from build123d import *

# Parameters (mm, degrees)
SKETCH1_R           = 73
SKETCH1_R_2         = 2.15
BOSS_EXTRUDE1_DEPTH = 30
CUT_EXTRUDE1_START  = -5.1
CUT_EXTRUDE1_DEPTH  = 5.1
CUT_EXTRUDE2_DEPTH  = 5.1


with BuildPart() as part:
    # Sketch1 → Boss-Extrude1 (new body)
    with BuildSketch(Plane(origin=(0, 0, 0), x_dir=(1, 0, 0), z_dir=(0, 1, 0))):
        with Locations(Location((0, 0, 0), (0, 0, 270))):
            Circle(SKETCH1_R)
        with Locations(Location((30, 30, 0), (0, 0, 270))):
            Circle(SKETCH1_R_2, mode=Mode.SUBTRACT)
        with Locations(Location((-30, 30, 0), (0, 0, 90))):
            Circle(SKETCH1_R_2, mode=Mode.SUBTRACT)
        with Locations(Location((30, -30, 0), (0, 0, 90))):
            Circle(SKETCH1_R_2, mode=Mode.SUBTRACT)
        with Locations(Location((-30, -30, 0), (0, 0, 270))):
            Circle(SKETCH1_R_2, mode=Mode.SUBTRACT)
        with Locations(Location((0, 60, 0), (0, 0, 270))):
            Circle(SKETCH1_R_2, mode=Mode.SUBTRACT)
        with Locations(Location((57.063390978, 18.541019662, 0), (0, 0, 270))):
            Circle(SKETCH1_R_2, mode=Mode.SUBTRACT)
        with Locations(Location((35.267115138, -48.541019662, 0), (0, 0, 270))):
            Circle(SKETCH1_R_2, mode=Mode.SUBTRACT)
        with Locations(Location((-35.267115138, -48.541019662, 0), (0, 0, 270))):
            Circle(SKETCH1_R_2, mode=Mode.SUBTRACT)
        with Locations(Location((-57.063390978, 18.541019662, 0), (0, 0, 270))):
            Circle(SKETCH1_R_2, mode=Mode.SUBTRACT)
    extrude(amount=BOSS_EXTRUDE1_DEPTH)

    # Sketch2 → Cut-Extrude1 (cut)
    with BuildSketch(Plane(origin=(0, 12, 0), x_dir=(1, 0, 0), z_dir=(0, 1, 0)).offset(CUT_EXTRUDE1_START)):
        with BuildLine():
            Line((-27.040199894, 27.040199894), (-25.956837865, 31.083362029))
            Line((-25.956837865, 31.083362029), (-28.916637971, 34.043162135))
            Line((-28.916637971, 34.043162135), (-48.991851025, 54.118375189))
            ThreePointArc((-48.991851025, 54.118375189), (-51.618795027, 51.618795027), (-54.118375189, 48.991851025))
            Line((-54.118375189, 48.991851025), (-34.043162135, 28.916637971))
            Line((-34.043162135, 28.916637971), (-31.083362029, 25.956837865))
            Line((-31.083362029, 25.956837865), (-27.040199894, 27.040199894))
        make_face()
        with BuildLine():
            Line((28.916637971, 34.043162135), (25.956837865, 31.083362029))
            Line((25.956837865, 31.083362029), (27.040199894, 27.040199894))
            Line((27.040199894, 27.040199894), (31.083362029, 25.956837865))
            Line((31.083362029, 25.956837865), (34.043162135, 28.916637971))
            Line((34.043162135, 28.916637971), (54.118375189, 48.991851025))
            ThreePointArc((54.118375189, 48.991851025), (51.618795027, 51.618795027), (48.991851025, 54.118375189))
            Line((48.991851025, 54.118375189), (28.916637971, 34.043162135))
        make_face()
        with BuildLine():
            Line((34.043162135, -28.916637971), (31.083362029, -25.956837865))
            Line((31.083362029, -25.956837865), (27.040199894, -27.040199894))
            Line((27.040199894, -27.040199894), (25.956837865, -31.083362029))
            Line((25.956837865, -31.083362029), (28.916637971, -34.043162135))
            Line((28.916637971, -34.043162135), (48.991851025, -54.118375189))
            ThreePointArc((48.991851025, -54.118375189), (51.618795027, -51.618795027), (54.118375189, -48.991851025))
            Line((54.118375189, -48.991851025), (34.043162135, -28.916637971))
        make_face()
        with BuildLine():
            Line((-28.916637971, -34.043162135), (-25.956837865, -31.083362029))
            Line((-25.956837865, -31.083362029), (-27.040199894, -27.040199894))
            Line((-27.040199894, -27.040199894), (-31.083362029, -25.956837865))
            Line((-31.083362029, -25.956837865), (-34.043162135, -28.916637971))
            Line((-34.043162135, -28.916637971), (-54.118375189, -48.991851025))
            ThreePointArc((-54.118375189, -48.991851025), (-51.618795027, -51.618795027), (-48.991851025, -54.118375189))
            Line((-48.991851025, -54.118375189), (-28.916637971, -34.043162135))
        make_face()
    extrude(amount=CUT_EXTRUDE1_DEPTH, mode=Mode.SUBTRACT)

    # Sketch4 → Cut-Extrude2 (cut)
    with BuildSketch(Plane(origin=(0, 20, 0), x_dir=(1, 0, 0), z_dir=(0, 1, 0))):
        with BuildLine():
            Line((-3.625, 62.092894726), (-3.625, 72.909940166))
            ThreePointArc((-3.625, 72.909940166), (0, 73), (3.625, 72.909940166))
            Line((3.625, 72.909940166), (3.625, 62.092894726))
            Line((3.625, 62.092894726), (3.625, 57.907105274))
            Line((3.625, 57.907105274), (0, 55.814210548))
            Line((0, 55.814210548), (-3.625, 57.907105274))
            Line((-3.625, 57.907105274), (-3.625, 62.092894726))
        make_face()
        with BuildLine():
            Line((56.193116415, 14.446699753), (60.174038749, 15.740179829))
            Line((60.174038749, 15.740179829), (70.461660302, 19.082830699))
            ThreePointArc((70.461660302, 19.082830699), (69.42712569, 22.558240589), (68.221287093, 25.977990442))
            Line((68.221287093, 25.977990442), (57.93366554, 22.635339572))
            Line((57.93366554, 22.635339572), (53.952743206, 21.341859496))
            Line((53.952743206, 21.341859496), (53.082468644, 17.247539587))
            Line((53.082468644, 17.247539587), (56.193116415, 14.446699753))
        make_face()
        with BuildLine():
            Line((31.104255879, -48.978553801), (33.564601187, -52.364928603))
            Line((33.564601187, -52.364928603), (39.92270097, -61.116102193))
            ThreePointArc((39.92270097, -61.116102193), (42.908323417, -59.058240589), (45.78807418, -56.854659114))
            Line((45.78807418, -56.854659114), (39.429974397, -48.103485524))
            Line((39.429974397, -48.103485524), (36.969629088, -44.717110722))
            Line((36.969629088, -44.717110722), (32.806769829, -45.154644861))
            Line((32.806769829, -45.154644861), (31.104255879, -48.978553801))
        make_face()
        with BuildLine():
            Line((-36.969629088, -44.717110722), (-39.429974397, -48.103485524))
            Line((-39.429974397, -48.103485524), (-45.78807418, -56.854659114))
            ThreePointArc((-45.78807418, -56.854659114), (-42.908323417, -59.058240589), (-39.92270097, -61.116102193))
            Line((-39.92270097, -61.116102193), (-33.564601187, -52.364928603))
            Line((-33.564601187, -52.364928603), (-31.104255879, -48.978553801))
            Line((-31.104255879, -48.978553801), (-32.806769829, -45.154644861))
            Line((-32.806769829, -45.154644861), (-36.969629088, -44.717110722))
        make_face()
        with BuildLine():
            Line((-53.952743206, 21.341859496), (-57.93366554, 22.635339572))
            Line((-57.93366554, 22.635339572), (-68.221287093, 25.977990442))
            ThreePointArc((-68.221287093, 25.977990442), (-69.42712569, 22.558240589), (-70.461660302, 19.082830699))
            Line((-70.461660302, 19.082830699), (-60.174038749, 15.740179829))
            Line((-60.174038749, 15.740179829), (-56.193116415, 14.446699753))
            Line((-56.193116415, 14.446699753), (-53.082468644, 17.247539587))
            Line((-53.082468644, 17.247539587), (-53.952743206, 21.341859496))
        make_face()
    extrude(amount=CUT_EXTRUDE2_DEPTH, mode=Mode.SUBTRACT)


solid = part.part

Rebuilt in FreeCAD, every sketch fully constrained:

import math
import FreeCAD as App
import Part
import Sketcher

V = App.Vector
Q = App.Units.Quantity

doc = App.newDocument("Part")
params = doc.addObject("Spreadsheet::Sheet", "Params")
for row, (alias, value) in enumerate([
    ("sketch1_diameter", "146 mm"),
    ("sketch1_diameter2", "4.3 mm"),
    ("pad1_length", "30 mm"),
    ("sketch2_radius", "72.999999 mm"),
    ("pocket1_length", "5.1 mm"),
    ("sketch3_radius", "73 mm"),
    ("pocket2_length", "5.1 mm"),
], start=1):
    params.set(f"A{row}", alias)
    params.set(f"B{row}", "=" + value)
    params.setAlias(f"B{row}", alias)

body = doc.addObject("PartDesign::Body", "Body")

# Sketch on XZ plane
sketch1 = doc.addObject("Sketcher::SketchObject", "Sketch")
body.addObject(sketch1)
sketch1.AttachmentSupport = (doc.XZ_Plane, [""])
sketch1.MapMode = "FlatFace"
sketch1.addGeometry([
    Part.Circle(V(0, 0, 0), V(0, 0, 1), 73),  # 0
    Part.Circle(V(-57.1, -18.5, 0), V(0, 0, 1), 2.1),  # 1
    Part.Circle(V(-30, -30, 0), V(0, 0, 1), 2.1),  # 2
    Part.Circle(V(-30, 30, 0), V(0, 0, 1), 2.1),  # 3
    Part.Circle(V(-35.3, 48.5, 0), V(0, 0, 1), 2.1),  # 4
    Part.Circle(V(0, -60, 0), V(0, 0, 1), 2.1),  # 5
    Part.Circle(V(30, -30, 0), V(0, 0, 1), 2.1),  # 6
    Part.Circle(V(57.1, -18.5, 0), V(0, 0, 1), 2.1),  # 7
    Part.Circle(V(30, 30, 0), V(0, 0, 1), 2.1),  # 8
    Part.Circle(V(35.3, 48.5, 0), V(0, 0, 1), 2.1),  # 9
], False)
sketch1.addConstraint([
    Sketcher.Constraint("Coincident", 0, 3, -1, 1),
    Sketcher.Constraint("Equal", 1, 2),
    Sketcher.Constraint("Equal", 2, 3),
    Sketcher.Constraint("Equal", 3, 4),
    Sketcher.Constraint("Equal", 4, 5),
    Sketcher.Constraint("Equal", 5, 6),
    Sketcher.Constraint("Equal", 6, 7),
    Sketcher.Constraint("Equal", 7, 8),
    Sketcher.Constraint("Equal", 8, 9),
    Sketcher.Constraint("Symmetric", 3, 3, 6, 3, -1, 1),
    Sketcher.Constraint("Symmetric", 2, 3, 8, 3, -1, 1),
    Sketcher.Constraint("Symmetric", 2, 3, 6, 3, -2),
    Sketcher.Constraint("Symmetric", 1, 3, 7, 3, -2),
    Sketcher.Constraint("Symmetric", 4, 3, 9, 3, -2),
    Sketcher.Constraint("PointOnObject", 5, 3, -2),
    Sketcher.Constraint("Diameter", 0, 146.0),
    Sketcher.Constraint("Diameter", 1, 4.3),
    Sketcher.Constraint("DistanceX", 2, 3, -1, 1, 30.0),
    Sketcher.Constraint("DistanceY", 2, 3, -1, 1, 30.0),
    Sketcher.Constraint("DistanceY", 5, 3, -1, 1, 60.0),
    Sketcher.Constraint("DistanceX", 1, 3, -1, 1, 57.063391),
    Sketcher.Constraint("DistanceY", 1, 3, -1, 1, 18.54102),
    Sketcher.Constraint("DistanceY", -1, 1, 4, 3, 48.54102),
    Sketcher.Constraint("DistanceX", 4, 3, 9, 3, 70.53423),
])
sketch1.setExpression("Constraints[15]", "Params.sketch1_diameter")
sketch1.setExpression("Constraints[16]", "Params.sketch1_diameter2")
pad1 = doc.addObject("PartDesign::Pad", "Pad")
body.addObject(pad1)
pad1.Profile = sketch1
pad1.setExpression("Length", "Params.pad1_length")
pad1.Reversed = True

# Sketch on XZ plane
sketch2 = doc.addObject("Sketcher::SketchObject", "Sketch001")
body.addObject(sketch2)
sketch2.AttachmentSupport = (doc.XZ_Plane, [""])
sketch2.MapMode = "FlatFace"
sketch2.AttachmentOffset = App.Placement(V(0, 0, -6.9), App.Rotation())
sketch2.addGeometry([
    Part.LineSegment(V(-27, -27, 0), V(-26, -31.1, 0)),  # 0
    Part.LineSegment(V(-26, -31.1, 0), V(-49, -54.1, 0)),  # 1
    Part.ArcOfCircle(Part.Circle(V(0, 0, 0), V(0, 0, 1), 73), math.radians(-137.85), math.radians(-132.15)),  # 2
    Part.LineSegment(V(-54.1, -49, 0), V(-31.1, -26, 0)),  # 3
    Part.LineSegment(V(-31.1, -26, 0), V(-27, -27, 0)),  # 4
    Part.LineSegment(V(26, -31.1, 0), V(27, -27, 0)),  # 5
    Part.LineSegment(V(27, -27, 0), V(31.1, -26, 0)),  # 6
    Part.LineSegment(V(31.1, -26, 0), V(54.1, -49, 0)),  # 7
    Part.ArcOfCircle(Part.Circle(V(0, 0, 0), V(0, 0, 1), 73), math.radians(-47.85), math.radians(-42.15)),  # 8
    Part.LineSegment(V(49, -54.1, 0), V(26, -31.1, 0)),  # 9
    Part.LineSegment(V(31.1, 26, 0), V(27, 27, 0)),  # 10
    Part.LineSegment(V(27, 27, 0), V(26, 31.1, 0)),  # 11
    Part.LineSegment(V(26, 31.1, 0), V(49, 54.1, 0)),  # 12
    Part.ArcOfCircle(Part.Circle(V(0, 0, 0), V(0, 0, 1), 73), math.radians(42.15), math.radians(47.85)),  # 13
    Part.LineSegment(V(54.1, 49, 0), V(31.1, 26, 0)),  # 14
    Part.LineSegment(V(-26, 31.1, 0), V(-27, 27, 0)),  # 15
    Part.LineSegment(V(-27, 27, 0), V(-31.1, 26, 0)),  # 16
    Part.LineSegment(V(-31.1, 26, 0), V(-54.1, 49, 0)),  # 17
    Part.ArcOfCircle(Part.Circle(V(0, 0, 0), V(0, 0, 1), 73), math.radians(132.15), math.radians(137.85)),  # 18
    Part.LineSegment(V(-49, 54.1, 0), V(-26, 31.1, 0)),  # 19
], False)
sketch2.addConstraint([
    Sketcher.Constraint("Coincident", 0, 2, 1, 1),
    Sketcher.Constraint("Coincident", 1, 2, 2, 2),
    Sketcher.Constraint("Coincident", 2, 1, 3, 1),
    Sketcher.Constraint("Coincident", 3, 2, 4, 1),
    Sketcher.Constraint("Coincident", 4, 2, 0, 1),
    Sketcher.Constraint("Coincident", 5, 2, 6, 1),
    Sketcher.Constraint("Coincident", 6, 2, 7, 1),
    Sketcher.Constraint("Coincident", 7, 2, 8, 2),
    Sketcher.Constraint("Coincident", 8, 1, 9, 1),
    Sketcher.Constraint("Coincident", 9, 2, 5, 1),
    Sketcher.Constraint("Coincident", 10, 2, 11, 1),
    Sketcher.Constraint("Coincident", 11, 2, 12, 1),
    Sketcher.Constraint("Coincident", 12, 2, 13, 2),
    Sketcher.Constraint("Coincident", 13, 1, 14, 1),
    Sketcher.Constraint("Coincident", 14, 2, 10, 1),
    Sketcher.Constraint("Coincident", 15, 2, 16, 1),
    Sketcher.Constraint("Coincident", 16, 2, 17, 1),
    Sketcher.Constraint("Coincident", 17, 2, 18, 2),
    Sketcher.Constraint("Coincident", 18, 1, 19, 1),
    Sketcher.Constraint("Coincident", 19, 2, 15, 1),
    Sketcher.Constraint("Coincident", 2, 3, -1, 1),
    Sketcher.Constraint("Coincident", 8, 3, -1, 1),
    Sketcher.Constraint("Coincident", 13, 3, -1, 1),
    Sketcher.Constraint("Coincident", 18, 3, -1, 1),
    Sketcher.Constraint("Equal", 2, 8),
    Sketcher.Constraint("Equal", 8, 13),
    Sketcher.Constraint("Equal", 13, 18),
    Sketcher.Constraint("Symmetric", 4, 2, 10, 2, -1, 1),
    Sketcher.Constraint("Symmetric", 0, 2, 11, 2, -1, 1),
    Sketcher.Constraint("Symmetric", 3, 2, 14, 2, -1, 1),
    Sketcher.Constraint("Symmetric", 5, 2, 15, 2, -1, 1),
    Sketcher.Constraint("Symmetric", 6, 2, 16, 2, -1, 1),
    Sketcher.Constraint("Symmetric", 9, 2, 19, 2, -1, 1),
    Sketcher.Constraint("Symmetric", 4, 2, 5, 2, -2),
    Sketcher.Constraint("Symmetric", 3, 2, 6, 2, -2),
    Sketcher.Constraint("Symmetric", 0, 2, 9, 2, -2),
    Sketcher.Constraint("Parallel", 1, 3),
    Sketcher.Constraint("Perpendicular", 4, 5),
    Sketcher.Constraint("Perpendicular", 3, 7),
    Sketcher.Constraint("Parallel", 7, 9),
    Sketcher.Constraint("Perpendicular", 9, 12),
    Sketcher.Constraint("Parallel", 12, 14),
    Sketcher.Constraint("Perpendicular", 14, 17),
    Sketcher.Constraint("Parallel", 17, 19),
    Sketcher.Constraint("Horizontal", 2, 1, 7, 2),
    Sketcher.Constraint("Equal", 1, 3),
    Sketcher.Constraint("Equal", 0, 4),
    Sketcher.Constraint("Radius", 2, 72.999999),
    Sketcher.Constraint("Angle", 0, Q("-75 deg")),
    Sketcher.Constraint("DistanceX", 4, 2, -1, 1, 27.0402),
    Sketcher.Constraint("Distance", 0, 4.185789),
])
sketch2.setExpression("Constraints[47]", "Params.sketch2_radius")
pocket1 = doc.addObject("PartDesign::Pocket", "Pocket")
body.addObject(pocket1)
pocket1.Profile = sketch2
pocket1.setExpression("Length", "Params.pocket1_length")

# Sketch on XZ plane
sketch3 = doc.addObject("Sketcher::SketchObject", "Sketch002")
body.addObject(sketch3)
sketch3.AttachmentSupport = (doc.XZ_Plane, [""])
sketch3.MapMode = "FlatFace"
sketch3.AttachmentOffset = App.Placement(V(0, 0, -20), App.Rotation())
sketch3.addGeometry([
    Part.ArcOfCircle(Part.Circle(V(0, 0, 0), V(0, 0, 1), 73), math.radians(-92.85), math.radians(-87.15)),  # 0
    Part.LineSegment(V(-3.6, -72.9, 0), V(-3.6, -57.9, 0)),  # 1
    Part.LineSegment(V(-3.6, -57.9, 0), V(0, -55.8, 0)),  # 2
    Part.LineSegment(V(0, -55.8, 0), V(3.6, -57.9, 0)),  # 3
    Part.LineSegment(V(3.6, -57.9, 0), V(3.6, -72.9, 0)),  # 4
    Part.LineSegment(V(56.2, -14.4, 0), V(60.2, -15.7, 0)),  # 5
    Part.LineSegment(V(60.2, -15.7, 0), V(70.5, -19.1, 0)),  # 6
    Part.ArcOfCircle(Part.Circle(V(0, 0, 0), V(0, 0, 1), 73), math.radians(-20.85), math.radians(-15.15)),  # 7
    Part.LineSegment(V(68.2, -26, 0), V(57.9, -22.6, 0)),  # 8
    Part.LineSegment(V(57.9, -22.6, 0), V(54, -21.3, 0)),  # 9
    Part.LineSegment(V(54, -21.3, 0), V(53.1, -17.2, 0)),  # 10
    Part.LineSegment(V(53.1, -17.2, 0), V(56.2, -14.4, 0)),  # 11
    Part.LineSegment(V(31.1, 49, 0), V(33.6, 52.4, 0)),  # 12
    Part.LineSegment(V(33.6, 52.4, 0), V(39.9, 61.1, 0)),  # 13
    Part.ArcOfCircle(Part.Circle(V(0, 0, 0), V(0, 0, 1), 73), math.radians(51.15), math.radians(56.85)),  # 14
    Part.LineSegment(V(45.8, 56.9, 0), V(39.4, 48.1, 0)),  # 15
    Part.LineSegment(V(39.4, 48.1, 0), V(37, 44.7, 0)),  # 16
    Part.LineSegment(V(37, 44.7, 0), V(32.8, 45.2, 0)),  # 17
    Part.LineSegment(V(32.8, 45.2, 0), V(31.1, 49, 0)),  # 18
    Part.LineSegment(V(-37, 44.7, 0), V(-39.4, 48.1, 0)),  # 19
    Part.LineSegment(V(-39.4, 48.1, 0), V(-45.8, 56.9, 0)),  # 20
    Part.ArcOfCircle(Part.Circle(V(0, 0, 0), V(0, 0, 1), 73), math.radians(123.15), math.radians(128.85)),  # 21
    Part.LineSegment(V(-39.9, 61.1, 0), V(-33.6, 52.4, 0)),  # 22
    Part.LineSegment(V(-33.6, 52.4, 0), V(-31.1, 49, 0)),  # 23
    Part.LineSegment(V(-31.1, 49, 0), V(-32.8, 45.2, 0)),  # 24
    Part.LineSegment(V(-32.8, 45.2, 0), V(-37, 44.7, 0)),  # 25
    Part.LineSegment(V(-54, -21.3, 0), V(-57.9, -22.6, 0)),  # 26
    Part.LineSegment(V(-57.9, -22.6, 0), V(-68.2, -26, 0)),  # 27
    Part.ArcOfCircle(Part.Circle(V(0, 0, 0), V(0, 0, 1), 73), math.radians(-164.85), math.radians(-159.15)),  # 28
    Part.LineSegment(V(-70.5, -19.1, 0), V(-60.2, -15.7, 0)),  # 29
    Part.LineSegment(V(-60.2, -15.7, 0), V(-56.2, -14.4, 0)),  # 30
    Part.LineSegment(V(-56.2, -14.4, 0), V(-53.1, -17.2, 0)),  # 31
    Part.LineSegment(V(-53.1, -17.2, 0), V(-54, -21.3, 0)),  # 32
], False)
sketch3.addConstraint([
    Sketcher.Constraint("Coincident", 0, 1, 1, 1),
    Sketcher.Constraint("Coincident", 1, 2, 2, 1),
    Sketcher.Constraint("Coincident", 2, 2, 3, 1),
    Sketcher.Constraint("Coincident", 3, 2, 4, 1),
    Sketcher.Constraint("Coincident", 4, 2, 0, 2),
    Sketcher.Constraint("Coincident", 5, 2, 6, 1),
    Sketcher.Constraint("Coincident", 6, 2, 7, 2),
    Sketcher.Constraint("Coincident", 7, 1, 8, 1),
    Sketcher.Constraint("Coincident", 8, 2, 9, 1),
    Sketcher.Constraint("Coincident", 9, 2, 10, 1),
    Sketcher.Constraint("Coincident", 10, 2, 11, 1),
    Sketcher.Constraint("Coincident", 11, 2, 5, 1),
    Sketcher.Constraint("Coincident", 12, 2, 13, 1),
    Sketcher.Constraint("Coincident", 13, 2, 14, 2),
    Sketcher.Constraint("Coincident", 14, 1, 15, 1),
    Sketcher.Constraint("Coincident", 15, 2, 16, 1),
    Sketcher.Constraint("Coincident", 16, 2, 17, 1),
    Sketcher.Constraint("Coincident", 17, 2, 18, 1),
    Sketcher.Constraint("Coincident", 18, 2, 12, 1),
    Sketcher.Constraint("Coincident", 19, 2, 20, 1),
    Sketcher.Constraint("Coincident", 20, 2, 21, 2),
    Sketcher.Constraint("Coincident", 21, 1, 22, 1),
    Sketcher.Constraint("Coincident", 22, 2, 23, 1),
    Sketcher.Constraint("Coincident", 23, 2, 24, 1),
    Sketcher.Constraint("Coincident", 24, 2, 25, 1),
    Sketcher.Constraint("Coincident", 25, 2, 19, 1),
    Sketcher.Constraint("Coincident", 26, 2, 27, 1),
    Sketcher.Constraint("Coincident", 27, 2, 28, 2),
    Sketcher.Constraint("Coincident", 28, 1, 29, 1),
    Sketcher.Constraint("Coincident", 29, 2, 30, 1),
    Sketcher.Constraint("Coincident", 30, 2, 31, 1),
    Sketcher.Constraint("Coincident", 31, 2, 32, 1),
    Sketcher.Constraint("Coincident", 32, 2, 26, 1),
    Sketcher.Constraint("Vertical", 1),
    Sketcher.Constraint("Vertical", 4),
    Sketcher.Constraint("Coincident", 0, 3, -1, 1),
    Sketcher.Constraint("Coincident", 7, 3, -1, 1),
    Sketcher.Constraint("Coincident", 14, 3, -1, 1),
    Sketcher.Constraint("Coincident", 21, 3, -1, 1),
    Sketcher.Constraint("Coincident", 28, 3, -1, 1),
    Sketcher.Constraint("Equal", 0, 7),
    Sketcher.Constraint("Equal", 7, 14),
    Sketcher.Constraint("Equal", 14, 21),
    Sketcher.Constraint("Equal", 21, 28),
    Sketcher.Constraint("Symmetric", 1, 2, 3, 2, -2),
    Sketcher.Constraint("Symmetric", 15, 2, 19, 2, -2),
    Sketcher.Constraint("Symmetric", 12, 2, 22, 2, -2),
    Sketcher.Constraint("Symmetric", 18, 2, 23, 2, -2),
    Sketcher.Constraint("Symmetric", 17, 2, 24, 2, -2),
    Sketcher.Constraint("Symmetric", 16, 2, 25, 2, -2),
    Sketcher.Constraint("Symmetric", 8, 2, 26, 2, -2),
    Sketcher.Constraint("Symmetric", 5, 2, 29, 2, -2),
    Sketcher.Constraint("Symmetric", 11, 2, 30, 2, -2),
    Sketcher.Constraint("Symmetric", 10, 2, 31, 2, -2),
    Sketcher.Constraint("Symmetric", 9, 2, 32, 2, -2),
    Sketcher.Constraint("PointOnObject", 2, 2, -2),
    Sketcher.Constraint("Parallel", 5, 6),
    Sketcher.Constraint("Parallel", 6, 8),
    Sketcher.Constraint("Parallel", 8, 9),
    Sketcher.Constraint("Parallel", 12, 13),
    Sketcher.Constraint("Parallel", 13, 15),
    Sketcher.Constraint("Parallel", 15, 16),
    Sketcher.Constraint("Parallel", 19, 20),
    Sketcher.Constraint("Parallel", 20, 22),
    Sketcher.Constraint("Parallel", 26, 27),
    Sketcher.Constraint("Parallel", 27, 29),
    Sketcher.Constraint("Equal", 3, 5),
    Sketcher.Constraint("Equal", 6, 8),
    Sketcher.Constraint("Equal", 5, 9),
    Sketcher.Constraint("Equal", 9, 10),
    Sketcher.Constraint("Equal", 10, 11),
    Sketcher.Constraint("Equal", 11, 12),
    Sketcher.Constraint("Equal", 8, 13),
    Sketcher.Constraint("Equal", 13, 15),
    Sketcher.Constraint("Equal", 12, 16),
    Sketcher.Constraint("Equal", 16, 17),
    Sketcher.Constraint("Equal", 17, 18),
    Sketcher.Constraint("Radius", 0, 73.0),
    Sketcher.Constraint("Angle", 2, Q("30 deg")),
    Sketcher.Constraint("Angle", 5, Q("-18 deg")),
    Sketcher.Constraint("Angle", 10, Q("102 deg")),
    Sketcher.Constraint("Angle", 11, Q("42 deg")),
    Sketcher.Constraint("Angle", 12, Q("54 deg")),
    Sketcher.Constraint("Angle", 17, Q("174 deg")),
    Sketcher.Constraint("Angle", 18, Q("114 deg")),
    Sketcher.Constraint("DistanceX", 1, 2, 3, 2, 7.25),
    Sketcher.Constraint("DistanceY", 11, 2, -1, 1, 14.4467),
    Sketcher.Constraint("DistanceY", 1, 1, 1, 2, 15.002835),
])
sketch3.setExpression("Constraints[77]", "Params.sketch3_radius")
pocket2 = doc.addObject("PartDesign::Pocket", "Pocket001")
body.addObject(pocket2)
pocket2.Profile = sketch3
pocket2.setExpression("Length", "Params.pocket2_length")

doc.recompute()
